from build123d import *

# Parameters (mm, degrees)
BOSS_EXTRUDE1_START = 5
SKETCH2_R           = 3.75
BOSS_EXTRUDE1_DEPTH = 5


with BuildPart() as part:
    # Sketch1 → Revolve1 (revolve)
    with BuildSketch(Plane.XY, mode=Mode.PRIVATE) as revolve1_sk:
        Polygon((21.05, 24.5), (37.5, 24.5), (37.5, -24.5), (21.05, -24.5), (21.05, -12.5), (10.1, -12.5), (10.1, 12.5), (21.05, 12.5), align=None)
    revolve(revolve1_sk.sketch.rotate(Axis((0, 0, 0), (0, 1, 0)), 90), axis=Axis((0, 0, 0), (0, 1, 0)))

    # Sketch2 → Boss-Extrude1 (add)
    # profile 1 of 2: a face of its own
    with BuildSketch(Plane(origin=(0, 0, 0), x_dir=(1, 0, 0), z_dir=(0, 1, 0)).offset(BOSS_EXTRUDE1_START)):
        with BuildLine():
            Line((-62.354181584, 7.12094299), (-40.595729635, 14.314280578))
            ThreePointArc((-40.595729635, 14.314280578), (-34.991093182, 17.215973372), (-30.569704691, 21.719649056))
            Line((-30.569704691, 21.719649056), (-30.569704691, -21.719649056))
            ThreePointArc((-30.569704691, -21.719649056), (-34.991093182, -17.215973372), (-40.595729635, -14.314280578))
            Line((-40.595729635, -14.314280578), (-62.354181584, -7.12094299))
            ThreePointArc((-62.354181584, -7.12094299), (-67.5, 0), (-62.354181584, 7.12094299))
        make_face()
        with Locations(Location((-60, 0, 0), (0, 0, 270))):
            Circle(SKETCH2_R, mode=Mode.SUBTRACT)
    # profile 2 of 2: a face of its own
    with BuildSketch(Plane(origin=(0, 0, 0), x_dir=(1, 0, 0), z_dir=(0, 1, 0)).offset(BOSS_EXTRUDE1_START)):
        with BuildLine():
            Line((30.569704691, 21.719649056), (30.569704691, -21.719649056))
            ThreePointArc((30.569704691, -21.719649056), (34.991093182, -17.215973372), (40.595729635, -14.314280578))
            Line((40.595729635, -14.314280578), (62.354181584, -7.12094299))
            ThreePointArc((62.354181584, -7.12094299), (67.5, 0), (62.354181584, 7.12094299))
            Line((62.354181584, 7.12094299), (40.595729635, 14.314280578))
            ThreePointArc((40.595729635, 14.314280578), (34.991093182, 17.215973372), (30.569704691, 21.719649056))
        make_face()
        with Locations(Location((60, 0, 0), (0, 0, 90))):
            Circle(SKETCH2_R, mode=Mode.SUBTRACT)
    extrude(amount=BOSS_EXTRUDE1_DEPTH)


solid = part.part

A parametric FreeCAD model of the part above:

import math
import FreeCAD as App
import Part
import Sketcher
from FreeCAD import Vector
Q = App.Units.Quantity


def add_polygon(sketch, points):
    """Adds a closed chain of lines whose ends are joined by coincident constraints."""
    first, n = sketch.GeometryCount, len(points)
    for a, b in zip(points, points[1:] + points[:1]):
        sketch.addGeometry(Part.LineSegment(App.Vector(*a, 0), App.Vector(*b, 0)), False)
    for i in range(n):
        sketch.addConstraint(Sketcher.Constraint("Coincident", first + i, 2, first + (i + 1) % n, 1))

doc = App.newDocument("Part")
body = doc.addObject("PartDesign::Body", "Body")

# Sketch on XY plane
sketch1 = body.newObject("Sketcher::SketchObject", "Sketch")
sketch1.AttachmentSupport = (doc.getObject("XY_Plane"), [""])
sketch1.MapMode = "FlatFace"
add_polygon(sketch1, [(38, 24), (21, 24), (21, 12), (10, 12), (10, -12), (21, -12), (21, -24), (38, -24)])  # lines 0-7
sketch1.addConstraint([
    Sketcher.Constraint("Horizontal", 0),
    Sketcher.Constraint("Vertical", 1),
    Sketcher.Constraint("Horizontal", 2),
    Sketcher.Constraint("Vertical", 3),
    Sketcher.Constraint("Horizontal", 4),
    Sketcher.Constraint("Vertical", 5),
    Sketcher.Constraint("Horizontal", 6),
    Sketcher.Constraint("Vertical", 7),
    Sketcher.Constraint("Symmetric", 1, 2, 4, 2, -1),
    Sketcher.Constraint("Equal", 1, 5),
    Sketcher.Constraint("DistanceY", 1, 2, 1, 1, Q("12 mm")),
    Sketcher.Constraint("DistanceY", 3, 2, 3, 1, Q("25 mm")),
    Sketcher.Constraint("DistanceX", 0, 2, 0, 1, Q("16.45 mm")),
    Sketcher.Constraint("DistanceX", 2, 2, 2, 1, Q("10.95 mm")),
    Sketcher.Constraint("DistanceX", -1, 1, 2, 2, Q("10.1 mm")),
])
revolution = body.newObject("PartDesign::Revolution", "Revolution")
revolution.Profile = sketch1
revolution.ReferenceAxis = (sketch1, ["V_Axis"])
revolution.Angle = 360

# Sketch on XZ plane
sketch2 = body.newObject("Sketcher::SketchObject", "Sketch001")
sketch2.AttachmentSupport = (doc.getObject("XZ_Plane"), [""])
sketch2.MapMode = "FlatFace"
sketch2.AttachmentOffset = App.Placement(Vector(0, 0, -5), App.Rotation())
sketch2.addGeometry([
    Part.LineSegment(Vector(-40.6, -14.3, 0), Vector(-62.4, -7.1, 0)),  # 0
    Part.ArcOfCircle(Part.Circle(Vector(-60, 0, 0), Vector(0, 0, 1), 7.5), math.radians(108), math.radians(252)),  # 1
    Part.LineSegment(Vector(-62.4, 7.1, 0), Vector(-40.6, 14.3, 0)),  # 2
    Part.ArcOfCircle(Part.Circle(Vector(-46.9, 33.3, 0), Vector(0, 0, 1), 20), math.radians(-72), math.radians(-35)),  # 3
    Part.LineSegment(Vector(-30.6, 21.7, 0), Vector(-30.6, -21.7, 0)),  # 4
    Part.ArcOfCircle(Part.Circle(Vector(-46.9, -33.3, 0), Vector(0, 0, 1), 20), math.radians(35), math.radians(72)),  # 5
    Part.Circle(Vector(-60, 0, 0), Vector(0, 0, 1), 3.8),  # 6
    Part.LineSegment(Vector(30.6, -21.7, 0), Vector(30.6, 21.7, 0)),  # 7
    Part.ArcOfCircle(Part.Circle(Vector(46.9, 33.3, 0), Vector(0, 0, 1), 20), math.radians(-145), math.radians(-108)),  # 8
    Part.LineSegment(Vector(40.6, 14.3, 0), Vector(62.4, 7.1, 0)),  # 9
    Part.ArcOfCircle(Part.Circle(Vector(60, 0, 0), Vector(0, 0, 1), 7.5), math.radians(-72), math.radians(72)),  # 10
    Part.LineSegment(Vector(62.4, -7.1, 0), Vector(40.6, -14.3, 0)),  # 11
    Part.ArcOfCircle(Part.Circle(Vector(46.9, -33.3, 0), Vector(0, 0, 1), 20), math.radians(108), math.radians(145)),  # 12
    Part.Circle(Vector(60, 0, 0), Vector(0, 0, 1), 3.8),  # 13
], False)
sketch2.addConstraint([
    Sketcher.Constraint("Tangent", 0, 2, 1, 2),
    Sketcher.Constraint("Tangent", 1, 1, 2, 1),
    Sketcher.Constraint("Tangent", 2, 2, 3, 1),
    Sketcher.Constraint("Coincident", 3, 2, 4, 1),
    Sketcher.Constraint("Coincident", 4, 2, 5, 1),
    Sketcher.Constraint("Tangent", 5, 2, 0, 1),
    Sketcher.Constraint("Coincident", 7, 2, 8, 1),
    Sketcher.Constraint("Tangent", 8, 2, 9, 1),
    Sketcher.Constraint("Tangent", 9, 2, 10, 2),
    Sketcher.Constraint("Tangent", 10, 1, 11, 1),
    Sketcher.Constraint("Tangent", 11, 2, 12, 1),
    Sketcher.Constraint("Coincident", 12, 2, 7, 1),
    Sketcher.Constraint("Vertical", 4),
    Sketcher.Constraint("Vertical", 7),
    Sketcher.Constraint("Coincident", 6, 3, 1, 3),
    Sketcher.Constraint("Coincident", 13, 3, 10, 3),
    Sketcher.Constraint("Equal", 3, 5),
    Sketcher.Constraint("Equal", 5, 8),
    Sketcher.Constraint("Equal", 1, 10),
    Sketcher.Constraint("Equal", 8, 12),
    Sketcher.Constraint("Equal", 6, 13),
    Sketcher.Constraint("Symmetric", 5, 3, 8, 3, -1, 1),
    Sketcher.Constraint("Symmetric", 1, 3, 10, 3, -1, 1),
    Sketcher.Constraint("Symmetric", 3, 3, 12, 3, -1, 1),
    Sketcher.Constraint("Symmetric", 3, 3, 8, 3, -2),
    Sketcher.Constraint("PointOnObject", 1, 3, -1),
    Sketcher.Constraint("Horizontal", 3, 2, 7, 2),
    Sketcher.Constraint("Radius", 3, Q("20 mm")),
    Sketcher.Constraint("Diameter", 6, Q("7.5 mm")),
    Sketcher.Constraint("Radius", 1, Q("7.5 mm")),
    Sketcher.Constraint("DistanceX", 1, 3, -1, 1, Q("60 mm")),
    Sketcher.Constraint("DistanceY", 4, 2, 4, 1, Q("43.439298 mm")),
    Sketcher.Constraint("DistanceY", -1, 1, 3, 3, Q("33.303462 mm")),
    Sketcher.Constraint("DistanceX", 0, 2, -1, 1, Q("62.354182 mm")),
])
pad1 = body.newObject("PartDesign::Pad", "Pad")
pad1.Profile = sketch2
pad1.Length = 5
pad1.Reversed = True

doc.recompute()
